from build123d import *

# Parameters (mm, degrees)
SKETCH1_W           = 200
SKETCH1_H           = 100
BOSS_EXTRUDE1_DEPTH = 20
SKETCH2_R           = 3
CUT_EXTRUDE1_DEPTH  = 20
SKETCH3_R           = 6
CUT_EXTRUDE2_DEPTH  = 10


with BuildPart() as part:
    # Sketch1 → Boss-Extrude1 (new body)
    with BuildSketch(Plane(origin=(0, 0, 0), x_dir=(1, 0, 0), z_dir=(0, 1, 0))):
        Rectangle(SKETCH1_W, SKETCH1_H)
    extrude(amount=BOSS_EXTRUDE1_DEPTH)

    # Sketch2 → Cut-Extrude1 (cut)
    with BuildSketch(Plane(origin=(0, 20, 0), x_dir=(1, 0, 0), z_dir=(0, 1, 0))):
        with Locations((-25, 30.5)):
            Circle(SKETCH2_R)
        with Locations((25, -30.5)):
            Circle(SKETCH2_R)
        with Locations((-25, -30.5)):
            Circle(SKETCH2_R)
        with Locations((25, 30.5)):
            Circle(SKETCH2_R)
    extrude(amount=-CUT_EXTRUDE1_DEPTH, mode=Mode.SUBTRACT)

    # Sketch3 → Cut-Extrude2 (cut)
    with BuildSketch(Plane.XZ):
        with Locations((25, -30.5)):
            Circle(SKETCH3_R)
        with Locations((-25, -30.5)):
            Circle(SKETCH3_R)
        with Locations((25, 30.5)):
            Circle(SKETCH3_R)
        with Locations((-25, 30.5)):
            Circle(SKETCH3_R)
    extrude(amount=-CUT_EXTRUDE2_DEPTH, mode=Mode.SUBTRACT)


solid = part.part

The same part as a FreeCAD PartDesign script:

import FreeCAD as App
import Part
import Sketcher
Q = App.Units.Quantity


def add_polygon(sketch, points):
    """Adds a closed chain of lines whose ends are joined by coincident constraints."""
    first, n = sketch.GeometryCount, len(points)
    for a, b in zip(points, points[1:] + points[:1]):
        sketch.addGeometry(Part.LineSegment(App.Vector(*a, 0), App.Vector(*b, 0)), False)
    for i in range(n):
        sketch.addConstraint(Sketcher.Constraint("Coincident", first + i, 2, first + (i + 1) % n, 1))

doc = App.newDocument("Part")
body = doc.addObject("PartDesign::Body", "Body")

sketch1 = body.newObject("Sketcher::SketchObject", "Sketch")
sketch1.AttachmentSupport = (doc.getObject("XZ_Plane"), [""])
sketch1.MapMode = "FlatFace"
add_polygon(sketch1, [(-100, -50), (-100, 50), (100, 50), (100, -50)])
sketch1.addConstraint([
    Sketcher.Constraint("Vertical", 0),
    Sketcher.Constraint("Horizontal", 1),
    Sketcher.Constraint("Vertical", 2),
    Sketcher.Constraint("Horizontal", 3),
    Sketcher.Constraint("Symmetric", 0, 2, 2, 2, -1, 1),
    Sketcher.Constraint("DistanceX", 1, 1, 1, 2, Q("200 mm")),
    Sketcher.Constraint("DistanceY", 0, 1, 0, 2, Q("100 mm")),
])
pad1 = body.newObject("PartDesign::Pad", "Pad")
pad1.Profile = sketch1
pad1.Length = 20
pad1.Reversed = True

sketch2 = body.newObject("Sketcher::SketchObject", "Sketch001")
sketch2.AttachmentSupport = (doc.getObject("XZ_Plane"), [""])
sketch2.MapMode = "FlatFace"
sketch2.AttachmentOffset = App.Placement(App.Vector(0, 0, -20), App.Rotation())
sketch2.addGeometry([
    Part.Circle(App.Vector(-25, -30.5, 0), App.Vector(0, 0, 1), 3),
    Part.Circle(App.Vector(25, 30.5, 0), App.Vector(0, 0, 1), 3),
    Part.Circle(App.Vector(-25, 30.5, 0), App.Vector(0, 0, 1), 3),
    Part.Circle(App.Vector(25, -30.5, 0), App.Vector(0, 0, 1), 3),
], False)
sketch2.addConstraint([
    Sketcher.Constraint("Equal", 0, 1),
    Sketcher.Constraint("Equal", 1, 2),
    Sketcher.Constraint("Equal", 2, 3),
    Sketcher.Constraint("Symmetric", 0, 3, 1, 3, -1, 1),
    Sketcher.Constraint("Symmetric", 2, 3, 3, 3, -1, 1),
    Sketcher.Constraint("Symmetric", 1, 3, 2, 3, -2),
    Sketcher.Constraint("Diameter", 0, Q("6 mm")),
    Sketcher.Constraint("DistanceX", 0, 3, -1, 1, Q("25 mm")),
    Sketcher.Constraint("DistanceY", 0, 3, 1, 3, Q("61 mm")),
])
pocket1 = body.newObject("PartDesign::Pocket", "Pocket")
pocket1.Profile = sketch2
pocket1.Length = 20
pocket1.Reversed = True

sketch3 = body.newObject("Sketcher::SketchObject", "Sketch002")
sketch3.AttachmentSupport = (doc.getObject("XZ_Plane"), [""])
sketch3.MapMode = "FlatFace"
sketch3.addGeometry([
    Part.Circle(App.Vector(25, -30, 0), App.Vector(0, 0, 1), 6),
    Part.Circle(App.Vector(-25, -30, 0), App.Vector(0, 0, 1), 6),
    Part.Circle(App.Vector(25, 30, 0), App.Vector(0, 0, 1), 6),
    Part.Circle(App.Vector(-25, 30, 0), App.Vector(0, 0, 1), 6),
], False)
sketch3.addConstraint([
    Sketcher.Constraint("Equal", 0, 1),
    Sketcher.Constraint("Equal", 1, 2),
    Sketcher.Constraint("Equal", 2, 3),
    Sketcher.Constraint("Symmetric", 1, 3, 2, 3, -1, 1),
    Sketcher.Constraint("Symmetric", 0, 3, 3, 3, -1, 1),
    Sketcher.Constraint("Symmetric", 0, 3, 1, 3, -2),
    Sketcher.Constraint("Diameter", 0, Q("12 mm")),
    Sketcher.Constraint("DistanceX", -1, 1, 0, 3, Q("25 mm")),
    Sketcher.Constraint("DistanceY", 0, 3, 2, 3, Q("61 mm")),
])
pocket2 = body.newObject("PartDesign::Pocket", "Pocket001")
pocket2.Profile = sketch3
pocket2.Length = 10

doc.recompute()
